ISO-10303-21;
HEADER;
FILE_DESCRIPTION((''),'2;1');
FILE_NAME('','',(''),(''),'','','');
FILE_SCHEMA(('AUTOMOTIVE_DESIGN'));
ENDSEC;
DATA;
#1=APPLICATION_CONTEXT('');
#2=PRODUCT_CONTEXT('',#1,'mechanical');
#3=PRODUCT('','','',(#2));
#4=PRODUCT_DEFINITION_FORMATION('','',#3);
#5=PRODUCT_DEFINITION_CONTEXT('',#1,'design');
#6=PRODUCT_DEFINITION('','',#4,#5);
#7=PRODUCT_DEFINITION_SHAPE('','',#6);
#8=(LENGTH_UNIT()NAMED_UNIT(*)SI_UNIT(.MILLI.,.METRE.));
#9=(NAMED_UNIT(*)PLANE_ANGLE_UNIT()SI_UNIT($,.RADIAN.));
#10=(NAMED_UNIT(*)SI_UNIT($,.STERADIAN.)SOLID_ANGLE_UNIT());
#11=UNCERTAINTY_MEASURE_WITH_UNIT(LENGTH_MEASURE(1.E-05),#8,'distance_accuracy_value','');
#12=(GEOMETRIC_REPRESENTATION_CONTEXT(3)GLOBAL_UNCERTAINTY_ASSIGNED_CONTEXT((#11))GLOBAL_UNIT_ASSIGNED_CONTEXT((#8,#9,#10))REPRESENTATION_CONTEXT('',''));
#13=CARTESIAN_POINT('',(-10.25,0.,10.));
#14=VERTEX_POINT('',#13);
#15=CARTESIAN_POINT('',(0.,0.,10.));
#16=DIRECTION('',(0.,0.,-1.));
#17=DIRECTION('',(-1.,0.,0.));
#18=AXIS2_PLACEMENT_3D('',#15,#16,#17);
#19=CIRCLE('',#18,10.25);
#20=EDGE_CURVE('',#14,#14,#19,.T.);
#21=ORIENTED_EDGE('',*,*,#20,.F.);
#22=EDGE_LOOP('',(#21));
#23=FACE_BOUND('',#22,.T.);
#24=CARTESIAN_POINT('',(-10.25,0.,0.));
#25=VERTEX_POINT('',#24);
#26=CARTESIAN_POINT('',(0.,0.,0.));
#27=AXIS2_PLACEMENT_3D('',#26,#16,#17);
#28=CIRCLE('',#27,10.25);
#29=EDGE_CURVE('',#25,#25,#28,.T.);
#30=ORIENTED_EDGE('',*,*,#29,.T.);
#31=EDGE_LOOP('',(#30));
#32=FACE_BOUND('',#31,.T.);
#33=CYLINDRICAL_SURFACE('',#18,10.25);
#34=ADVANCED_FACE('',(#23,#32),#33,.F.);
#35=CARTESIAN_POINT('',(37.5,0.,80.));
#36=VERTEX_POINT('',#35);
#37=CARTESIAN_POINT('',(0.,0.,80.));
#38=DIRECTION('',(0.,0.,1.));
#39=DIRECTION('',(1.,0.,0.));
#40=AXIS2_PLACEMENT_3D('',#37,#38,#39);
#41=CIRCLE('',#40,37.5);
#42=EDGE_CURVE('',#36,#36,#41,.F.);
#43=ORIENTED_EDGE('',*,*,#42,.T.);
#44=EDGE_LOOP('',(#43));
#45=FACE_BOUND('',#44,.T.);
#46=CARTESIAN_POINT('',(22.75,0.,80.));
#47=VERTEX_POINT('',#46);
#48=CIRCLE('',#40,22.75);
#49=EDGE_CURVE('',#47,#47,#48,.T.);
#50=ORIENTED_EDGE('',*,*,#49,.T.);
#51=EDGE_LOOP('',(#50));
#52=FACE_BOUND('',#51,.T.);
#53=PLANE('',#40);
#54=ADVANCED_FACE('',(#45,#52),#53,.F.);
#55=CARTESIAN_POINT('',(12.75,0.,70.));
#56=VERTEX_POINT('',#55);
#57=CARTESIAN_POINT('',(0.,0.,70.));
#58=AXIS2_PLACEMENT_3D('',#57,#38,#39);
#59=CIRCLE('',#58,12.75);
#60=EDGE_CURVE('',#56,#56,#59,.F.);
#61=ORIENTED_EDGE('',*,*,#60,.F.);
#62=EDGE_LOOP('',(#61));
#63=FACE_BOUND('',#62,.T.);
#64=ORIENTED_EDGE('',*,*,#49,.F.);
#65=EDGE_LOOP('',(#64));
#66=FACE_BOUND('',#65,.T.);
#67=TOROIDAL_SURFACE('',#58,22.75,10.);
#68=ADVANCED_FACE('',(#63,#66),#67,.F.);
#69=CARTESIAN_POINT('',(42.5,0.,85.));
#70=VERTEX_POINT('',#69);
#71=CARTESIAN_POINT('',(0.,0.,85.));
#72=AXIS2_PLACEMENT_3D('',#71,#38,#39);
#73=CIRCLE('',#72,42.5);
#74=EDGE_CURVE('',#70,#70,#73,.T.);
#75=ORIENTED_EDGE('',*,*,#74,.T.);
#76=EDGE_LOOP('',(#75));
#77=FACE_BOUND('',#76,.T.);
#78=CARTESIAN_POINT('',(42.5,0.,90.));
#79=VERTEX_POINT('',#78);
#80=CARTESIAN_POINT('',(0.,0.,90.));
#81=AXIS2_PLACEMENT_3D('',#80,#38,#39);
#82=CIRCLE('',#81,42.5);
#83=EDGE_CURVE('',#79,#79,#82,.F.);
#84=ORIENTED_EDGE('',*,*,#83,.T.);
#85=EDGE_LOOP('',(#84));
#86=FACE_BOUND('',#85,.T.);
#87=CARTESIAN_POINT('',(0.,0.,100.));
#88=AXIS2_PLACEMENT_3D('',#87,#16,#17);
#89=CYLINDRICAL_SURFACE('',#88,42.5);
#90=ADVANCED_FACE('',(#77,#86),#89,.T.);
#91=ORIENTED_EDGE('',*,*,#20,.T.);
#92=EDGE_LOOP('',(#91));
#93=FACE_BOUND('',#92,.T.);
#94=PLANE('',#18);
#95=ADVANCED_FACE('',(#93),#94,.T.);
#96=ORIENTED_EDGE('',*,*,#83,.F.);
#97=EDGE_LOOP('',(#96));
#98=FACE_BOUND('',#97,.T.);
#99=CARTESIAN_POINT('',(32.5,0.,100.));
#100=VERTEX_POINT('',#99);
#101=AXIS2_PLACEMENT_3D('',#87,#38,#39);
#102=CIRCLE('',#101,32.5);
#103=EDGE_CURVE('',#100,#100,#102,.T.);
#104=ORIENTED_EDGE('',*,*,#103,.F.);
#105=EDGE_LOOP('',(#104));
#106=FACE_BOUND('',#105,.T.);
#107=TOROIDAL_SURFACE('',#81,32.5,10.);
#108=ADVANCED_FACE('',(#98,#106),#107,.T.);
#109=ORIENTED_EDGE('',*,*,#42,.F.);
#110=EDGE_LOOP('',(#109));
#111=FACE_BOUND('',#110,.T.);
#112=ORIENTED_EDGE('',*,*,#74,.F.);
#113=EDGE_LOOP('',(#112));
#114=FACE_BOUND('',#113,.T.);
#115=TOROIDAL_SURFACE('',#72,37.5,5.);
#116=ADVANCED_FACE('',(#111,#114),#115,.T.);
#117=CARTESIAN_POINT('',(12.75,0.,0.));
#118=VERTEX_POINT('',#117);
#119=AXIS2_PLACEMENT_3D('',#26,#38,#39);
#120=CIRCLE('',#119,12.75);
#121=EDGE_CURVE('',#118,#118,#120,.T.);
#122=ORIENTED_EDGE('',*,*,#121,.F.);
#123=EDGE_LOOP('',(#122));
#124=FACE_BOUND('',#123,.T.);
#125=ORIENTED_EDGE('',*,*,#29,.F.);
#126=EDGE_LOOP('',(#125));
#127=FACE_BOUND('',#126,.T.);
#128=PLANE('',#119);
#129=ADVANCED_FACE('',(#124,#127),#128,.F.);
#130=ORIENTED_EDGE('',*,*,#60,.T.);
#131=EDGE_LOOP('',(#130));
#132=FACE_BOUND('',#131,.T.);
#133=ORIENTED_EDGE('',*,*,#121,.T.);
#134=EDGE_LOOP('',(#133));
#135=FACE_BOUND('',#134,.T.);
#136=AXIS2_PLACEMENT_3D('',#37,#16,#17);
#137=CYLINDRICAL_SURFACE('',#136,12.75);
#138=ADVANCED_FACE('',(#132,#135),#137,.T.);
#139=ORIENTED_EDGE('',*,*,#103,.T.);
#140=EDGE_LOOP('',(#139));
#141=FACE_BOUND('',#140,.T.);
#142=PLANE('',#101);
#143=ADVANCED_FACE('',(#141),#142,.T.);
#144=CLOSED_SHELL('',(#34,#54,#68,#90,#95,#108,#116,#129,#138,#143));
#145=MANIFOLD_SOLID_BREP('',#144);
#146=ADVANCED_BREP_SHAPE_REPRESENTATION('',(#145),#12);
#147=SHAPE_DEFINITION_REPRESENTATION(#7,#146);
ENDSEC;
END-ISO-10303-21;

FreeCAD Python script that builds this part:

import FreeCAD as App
import Part
import Sketcher
Q = App.Units.Quantity


def edges_at(feature, points):
    """Names of the edges that pass closest to the given points."""
    edges = feature.Shape.Edges
    near = lambda p: min(range(len(edges)), key=lambda i: edges[i].distToShape(Part.Vertex(*p))[0])
    return sorted({f"Edge{near(p) + 1}" for p in points})

doc = App.newDocument("Part")
body = doc.addObject("PartDesign::Body", "Body")

# Sketch on XY plane
sketch1 = body.newObject("Sketcher::SketchObject", "Sketch")
sketch1.AttachmentSupport = (doc.getObject("XY_Plane"), [""])
sketch1.MapMode = "FlatFace"
sketch1.addGeometry(Part.Circle(App.Vector(0, 0, 0), App.Vector(0, 0, 1), 13), False)
sketch1.addConstraint([
    Sketcher.Constraint("Coincident", 0, 3, -1, 1),
    Sketcher.Constraint("Diameter", 0, Q("25.5 mm")),
])
pad1 = body.newObject("PartDesign::Pad", "Pad")
pad1.Profile = sketch1
pad1.Length = 80

# Sketch on XY plane
sketch2 = body.newObject("Sketcher::SketchObject", "Sketch001")
sketch2.AttachmentSupport = (doc.getObject("XY_Plane"), [""])
sketch2.MapMode = "FlatFace"
sketch2.AttachmentOffset = App.Placement(App.Vector(0, 0, 80), App.Rotation())
sketch2.addGeometry(Part.Circle(App.Vector(0, 0, 0), App.Vector(0, 0, 1), 42), False)
sketch2.addConstraint([
    Sketcher.Constraint("Coincident", 0, 3, -1, 1),
    Sketcher.Constraint("Diameter", 0, Q("85 mm")),
])
pad2 = body.newObject("PartDesign::Pad", "Pad001")
pad2.Profile = sketch2
pad2.Length = 20
doc.recompute()

fillet = body.newObject("PartDesign::Fillet", "Fillet")
fillet.Base = (pad2, edges_at(pad2, [(-42.5, 0, 100)]))
fillet.Radius = 10

# Sketch on XY plane
sketch3 = body.newObject("Sketcher::SketchObject", "Sketch002")
sketch3.AttachmentSupport = (doc.getObject("XY_Plane"), [""])
sketch3.MapMode = "FlatFace"
sketch3.addGeometry(Part.Circle(App.Vector(0, 0, 0), App.Vector(0, 0, 1), 10), False)
sketch3.addConstraint([
    Sketcher.Constraint("Coincident", 0, 3, -1, 1),
    Sketcher.Constraint("Diameter", 0, Q("20.5 mm")),
])
pocket1 = body.newObject("PartDesign::Pocket", "Pocket")
pocket1.Profile = sketch3
pocket1.Length = 10
pocket1.Reversed = True
doc.recompute()

fillet2 = body.newObject("PartDesign::Fillet", "Fillet001")
fillet2.Base = (pocket1, edges_at(pocket1, [(-12.75, 0, 80)]))
fillet2.Radius = 10
doc.recompute()

fillet3 = body.newObject("PartDesign::Fillet", "Fillet002")
fillet3.Base = (fillet2, edges_at(fillet2, [(-42.5, 0, 80)]))
fillet3.Radius = 5

doc.recompute()
